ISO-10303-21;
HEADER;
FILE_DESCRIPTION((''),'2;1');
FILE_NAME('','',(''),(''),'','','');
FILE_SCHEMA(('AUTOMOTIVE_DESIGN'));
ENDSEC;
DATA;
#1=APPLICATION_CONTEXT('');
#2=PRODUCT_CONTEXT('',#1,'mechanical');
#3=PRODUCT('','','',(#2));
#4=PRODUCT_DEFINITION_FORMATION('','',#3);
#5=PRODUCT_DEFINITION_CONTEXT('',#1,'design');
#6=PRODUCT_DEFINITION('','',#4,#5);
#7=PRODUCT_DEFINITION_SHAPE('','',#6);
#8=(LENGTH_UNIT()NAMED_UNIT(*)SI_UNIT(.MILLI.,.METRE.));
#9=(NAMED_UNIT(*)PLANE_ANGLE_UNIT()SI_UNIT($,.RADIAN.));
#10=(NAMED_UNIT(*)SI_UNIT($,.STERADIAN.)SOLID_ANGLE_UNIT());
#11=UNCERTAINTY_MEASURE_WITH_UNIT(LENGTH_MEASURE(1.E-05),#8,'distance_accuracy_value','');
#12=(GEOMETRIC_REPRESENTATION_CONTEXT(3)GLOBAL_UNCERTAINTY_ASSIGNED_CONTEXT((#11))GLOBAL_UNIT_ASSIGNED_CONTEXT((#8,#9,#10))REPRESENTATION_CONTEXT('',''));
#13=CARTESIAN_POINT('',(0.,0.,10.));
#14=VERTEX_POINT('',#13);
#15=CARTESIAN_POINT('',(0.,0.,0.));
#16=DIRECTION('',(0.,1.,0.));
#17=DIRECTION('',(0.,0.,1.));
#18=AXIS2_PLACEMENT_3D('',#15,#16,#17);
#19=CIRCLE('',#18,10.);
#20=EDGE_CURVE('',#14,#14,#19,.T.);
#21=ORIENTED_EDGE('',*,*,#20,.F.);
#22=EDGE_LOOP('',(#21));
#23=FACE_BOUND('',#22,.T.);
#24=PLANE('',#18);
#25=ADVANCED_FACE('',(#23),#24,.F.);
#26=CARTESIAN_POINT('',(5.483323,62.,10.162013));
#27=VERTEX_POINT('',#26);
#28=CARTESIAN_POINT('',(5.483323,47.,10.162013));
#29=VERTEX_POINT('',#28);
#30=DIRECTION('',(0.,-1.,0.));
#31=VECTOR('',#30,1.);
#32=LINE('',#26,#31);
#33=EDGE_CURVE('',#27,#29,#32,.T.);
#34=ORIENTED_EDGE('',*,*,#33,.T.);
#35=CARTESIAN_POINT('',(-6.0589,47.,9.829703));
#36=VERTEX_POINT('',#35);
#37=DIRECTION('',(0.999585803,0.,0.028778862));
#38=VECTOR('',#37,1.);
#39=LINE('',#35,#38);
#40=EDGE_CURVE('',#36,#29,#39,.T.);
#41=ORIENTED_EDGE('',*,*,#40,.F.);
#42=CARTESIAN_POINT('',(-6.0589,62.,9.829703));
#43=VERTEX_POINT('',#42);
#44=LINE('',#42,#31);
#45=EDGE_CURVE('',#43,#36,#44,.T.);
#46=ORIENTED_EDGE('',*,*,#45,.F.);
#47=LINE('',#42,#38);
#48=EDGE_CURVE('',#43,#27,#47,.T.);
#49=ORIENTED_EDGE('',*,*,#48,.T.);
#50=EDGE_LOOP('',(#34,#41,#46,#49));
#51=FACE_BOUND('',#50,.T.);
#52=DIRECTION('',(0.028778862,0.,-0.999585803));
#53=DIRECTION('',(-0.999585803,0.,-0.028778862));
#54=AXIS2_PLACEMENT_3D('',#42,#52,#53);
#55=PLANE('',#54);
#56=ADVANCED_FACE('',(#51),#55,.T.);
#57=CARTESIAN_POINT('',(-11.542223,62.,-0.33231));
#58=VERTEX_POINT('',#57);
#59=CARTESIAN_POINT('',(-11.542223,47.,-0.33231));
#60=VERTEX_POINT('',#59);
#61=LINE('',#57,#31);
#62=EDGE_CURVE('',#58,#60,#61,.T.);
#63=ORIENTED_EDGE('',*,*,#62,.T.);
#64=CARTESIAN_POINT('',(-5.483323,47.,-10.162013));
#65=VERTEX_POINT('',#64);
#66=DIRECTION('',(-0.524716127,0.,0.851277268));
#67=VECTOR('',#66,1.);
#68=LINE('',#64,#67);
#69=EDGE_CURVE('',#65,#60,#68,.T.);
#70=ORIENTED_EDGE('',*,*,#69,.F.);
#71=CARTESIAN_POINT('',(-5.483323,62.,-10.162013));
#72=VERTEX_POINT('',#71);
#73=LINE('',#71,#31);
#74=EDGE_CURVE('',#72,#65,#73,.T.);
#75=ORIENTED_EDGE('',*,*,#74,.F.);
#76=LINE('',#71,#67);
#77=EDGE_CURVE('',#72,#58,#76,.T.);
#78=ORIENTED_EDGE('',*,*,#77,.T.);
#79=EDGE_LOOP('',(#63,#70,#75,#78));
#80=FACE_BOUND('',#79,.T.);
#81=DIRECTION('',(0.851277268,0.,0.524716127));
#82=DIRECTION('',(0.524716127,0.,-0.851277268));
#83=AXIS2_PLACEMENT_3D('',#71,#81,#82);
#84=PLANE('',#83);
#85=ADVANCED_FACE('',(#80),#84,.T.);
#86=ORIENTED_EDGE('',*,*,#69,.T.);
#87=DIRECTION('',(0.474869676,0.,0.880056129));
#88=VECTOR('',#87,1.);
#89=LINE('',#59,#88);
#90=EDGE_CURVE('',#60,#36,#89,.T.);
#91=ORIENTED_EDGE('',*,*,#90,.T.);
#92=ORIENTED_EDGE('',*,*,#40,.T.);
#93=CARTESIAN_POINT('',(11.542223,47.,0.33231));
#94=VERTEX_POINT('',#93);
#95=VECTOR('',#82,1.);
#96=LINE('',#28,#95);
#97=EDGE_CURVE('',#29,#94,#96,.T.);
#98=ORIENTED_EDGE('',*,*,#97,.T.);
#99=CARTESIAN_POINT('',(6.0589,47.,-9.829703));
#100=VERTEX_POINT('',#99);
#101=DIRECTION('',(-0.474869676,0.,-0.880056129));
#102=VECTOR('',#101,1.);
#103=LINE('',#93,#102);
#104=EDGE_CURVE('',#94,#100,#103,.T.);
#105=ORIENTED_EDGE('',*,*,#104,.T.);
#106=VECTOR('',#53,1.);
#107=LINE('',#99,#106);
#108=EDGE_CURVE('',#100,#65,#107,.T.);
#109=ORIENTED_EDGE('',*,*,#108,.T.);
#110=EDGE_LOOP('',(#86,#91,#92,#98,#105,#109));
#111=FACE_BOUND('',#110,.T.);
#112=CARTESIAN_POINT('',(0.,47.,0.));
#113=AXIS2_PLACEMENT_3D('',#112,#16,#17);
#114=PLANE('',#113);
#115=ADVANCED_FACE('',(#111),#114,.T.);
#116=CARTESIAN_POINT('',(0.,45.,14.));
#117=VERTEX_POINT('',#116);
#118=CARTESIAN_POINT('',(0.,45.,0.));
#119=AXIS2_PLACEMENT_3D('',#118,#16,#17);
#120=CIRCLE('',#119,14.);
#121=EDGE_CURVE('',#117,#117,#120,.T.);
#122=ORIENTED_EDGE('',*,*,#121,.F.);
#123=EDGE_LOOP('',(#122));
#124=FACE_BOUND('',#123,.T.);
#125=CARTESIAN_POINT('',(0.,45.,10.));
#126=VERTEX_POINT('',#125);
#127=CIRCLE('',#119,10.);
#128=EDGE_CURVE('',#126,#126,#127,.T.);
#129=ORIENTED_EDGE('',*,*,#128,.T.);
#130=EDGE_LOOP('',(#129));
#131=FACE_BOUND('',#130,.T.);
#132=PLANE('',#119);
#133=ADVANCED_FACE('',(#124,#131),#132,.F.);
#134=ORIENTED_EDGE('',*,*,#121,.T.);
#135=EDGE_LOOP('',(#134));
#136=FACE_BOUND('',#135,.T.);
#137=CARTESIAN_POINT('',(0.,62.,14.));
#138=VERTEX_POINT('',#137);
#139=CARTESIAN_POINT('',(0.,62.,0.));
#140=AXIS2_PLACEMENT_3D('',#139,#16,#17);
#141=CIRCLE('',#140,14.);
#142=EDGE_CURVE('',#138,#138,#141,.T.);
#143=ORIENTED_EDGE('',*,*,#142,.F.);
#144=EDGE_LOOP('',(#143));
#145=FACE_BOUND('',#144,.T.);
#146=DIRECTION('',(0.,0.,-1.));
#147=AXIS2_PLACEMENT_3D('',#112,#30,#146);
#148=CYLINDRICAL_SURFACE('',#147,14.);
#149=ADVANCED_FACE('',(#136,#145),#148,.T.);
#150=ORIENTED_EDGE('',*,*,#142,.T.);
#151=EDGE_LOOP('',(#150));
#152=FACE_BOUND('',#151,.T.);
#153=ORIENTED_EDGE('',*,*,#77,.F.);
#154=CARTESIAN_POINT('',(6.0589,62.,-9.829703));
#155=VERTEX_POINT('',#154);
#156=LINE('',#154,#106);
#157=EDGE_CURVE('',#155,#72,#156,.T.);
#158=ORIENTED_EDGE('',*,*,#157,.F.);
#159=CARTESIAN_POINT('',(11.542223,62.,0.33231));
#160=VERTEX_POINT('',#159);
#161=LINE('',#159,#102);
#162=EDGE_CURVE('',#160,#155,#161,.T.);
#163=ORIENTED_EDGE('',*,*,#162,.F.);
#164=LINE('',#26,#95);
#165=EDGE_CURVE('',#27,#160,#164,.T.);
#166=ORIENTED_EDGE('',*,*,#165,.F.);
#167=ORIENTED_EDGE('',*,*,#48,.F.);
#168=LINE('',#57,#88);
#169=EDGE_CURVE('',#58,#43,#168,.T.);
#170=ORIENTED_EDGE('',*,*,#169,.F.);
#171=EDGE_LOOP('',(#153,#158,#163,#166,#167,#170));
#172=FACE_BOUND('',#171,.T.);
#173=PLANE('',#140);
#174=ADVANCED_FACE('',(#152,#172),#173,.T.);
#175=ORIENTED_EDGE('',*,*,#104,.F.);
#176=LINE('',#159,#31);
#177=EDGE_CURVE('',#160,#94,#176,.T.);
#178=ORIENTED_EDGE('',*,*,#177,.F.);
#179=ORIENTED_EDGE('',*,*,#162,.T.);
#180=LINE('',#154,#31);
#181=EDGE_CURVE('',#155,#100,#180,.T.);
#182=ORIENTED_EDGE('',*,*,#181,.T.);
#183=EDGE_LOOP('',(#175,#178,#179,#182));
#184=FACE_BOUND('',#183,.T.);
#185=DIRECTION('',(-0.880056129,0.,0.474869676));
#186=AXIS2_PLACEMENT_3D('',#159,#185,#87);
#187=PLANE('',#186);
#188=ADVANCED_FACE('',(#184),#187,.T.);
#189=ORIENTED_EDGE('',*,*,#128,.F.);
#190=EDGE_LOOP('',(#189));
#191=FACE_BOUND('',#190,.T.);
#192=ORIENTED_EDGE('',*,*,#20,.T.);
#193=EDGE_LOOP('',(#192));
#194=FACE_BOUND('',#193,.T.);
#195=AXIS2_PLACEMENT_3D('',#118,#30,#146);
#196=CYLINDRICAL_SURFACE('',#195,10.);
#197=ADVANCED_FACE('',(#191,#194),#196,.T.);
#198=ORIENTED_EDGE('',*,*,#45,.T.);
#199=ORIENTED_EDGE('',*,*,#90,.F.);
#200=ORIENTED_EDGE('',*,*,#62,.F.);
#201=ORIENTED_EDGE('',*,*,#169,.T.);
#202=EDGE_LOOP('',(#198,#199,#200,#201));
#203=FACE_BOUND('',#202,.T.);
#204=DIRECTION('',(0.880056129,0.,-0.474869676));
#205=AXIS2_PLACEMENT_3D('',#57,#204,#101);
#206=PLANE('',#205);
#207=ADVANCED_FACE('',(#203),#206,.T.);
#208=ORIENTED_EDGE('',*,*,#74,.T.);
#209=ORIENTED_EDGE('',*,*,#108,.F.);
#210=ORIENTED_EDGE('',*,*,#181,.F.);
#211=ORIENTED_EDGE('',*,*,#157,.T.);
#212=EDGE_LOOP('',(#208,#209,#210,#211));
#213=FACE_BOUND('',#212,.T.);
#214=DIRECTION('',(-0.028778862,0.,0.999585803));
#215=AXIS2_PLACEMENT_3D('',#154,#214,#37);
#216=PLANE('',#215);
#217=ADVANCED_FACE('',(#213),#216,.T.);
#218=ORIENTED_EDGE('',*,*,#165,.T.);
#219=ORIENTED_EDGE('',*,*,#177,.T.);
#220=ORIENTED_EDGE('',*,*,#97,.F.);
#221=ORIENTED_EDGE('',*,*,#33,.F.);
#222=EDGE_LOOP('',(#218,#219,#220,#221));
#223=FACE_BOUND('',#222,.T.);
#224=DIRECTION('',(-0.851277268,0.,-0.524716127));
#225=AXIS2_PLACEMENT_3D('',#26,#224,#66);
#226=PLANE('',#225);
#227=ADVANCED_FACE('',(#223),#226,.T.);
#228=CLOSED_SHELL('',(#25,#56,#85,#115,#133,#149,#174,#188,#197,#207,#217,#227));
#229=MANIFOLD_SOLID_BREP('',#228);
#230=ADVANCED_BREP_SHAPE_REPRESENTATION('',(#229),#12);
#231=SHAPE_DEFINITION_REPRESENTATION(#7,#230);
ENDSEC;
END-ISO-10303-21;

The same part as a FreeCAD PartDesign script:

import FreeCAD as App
import Part
import Sketcher

V = App.Vector
Q = App.Units.Quantity

doc = App.newDocument("Part")
params = doc.addObject("Spreadsheet::Sheet", "Params")
for row, (alias, value) in enumerate([
    ("sketch1_diameter", "20 mm"),
    ("pad1_length", "45 mm"),
    ("sketch2_diameter", "28 mm"),
    ("pad2_length", "2 mm"),
    ("sketch3_diameter", "28 mm"),
    ("pad3_length", "15 mm"),
], start=1):
    params.set(f"A{row}", alias)
    params.set(f"B{row}", "=" + value)
    params.setAlias(f"B{row}", alias)

body = doc.addObject("PartDesign::Body", "Body")

# Sketch on XZ plane
sketch1 = body.newObject("Sketcher::SketchObject", "Sketch")
sketch1.AttachmentSupport = (doc.getObject("XZ_Plane"), [""])
sketch1.MapMode = "FlatFace"
sketch1.addGeometry(Part.Circle(V(0, 0, 0), V(0, 0, 1), 10), False)
sketch1.addConstraint(Sketcher.Constraint("Coincident", 0, 3, -1, 1))
sketch1.addConstraint(Sketcher.Constraint("Diameter", 0, Q("20 mm")))
sketch1.setExpression("Constraints[1]", "Params.sketch1_diameter")
pad1 = body.newObject("PartDesign::Pad", "Pad")
pad1.Profile = sketch1
pad1.setExpression("Length", "Params.pad1_length")
pad1.Reversed = True

# Sketch on XZ plane
sketch2 = body.newObject("Sketcher::SketchObject", "Sketch001")
sketch2.AttachmentSupport = (doc.getObject("XZ_Plane"), [""])
sketch2.MapMode = "FlatFace"
sketch2.AttachmentOffset = App.Placement(V(0, 0, -45), App.Rotation())
sketch2.addGeometry(Part.Circle(V(0, 0, 0), V(0, 0, 1), 14), False)
sketch2.addConstraint(Sketcher.Constraint("Coincident", 0, 3, -1, 1))
sketch2.addConstraint(Sketcher.Constraint("Diameter", 0, Q("28 mm")))
sketch2.setExpression("Constraints[1]", "Params.sketch2_diameter")
pad2 = body.newObject("PartDesign::Pad", "Pad001")
pad2.Profile = sketch2
pad2.setExpression("Length", "Params.pad2_length")
pad2.Reversed = True

# Sketch on XZ plane
sketch3 = body.newObject("Sketcher::SketchObject", "Sketch002")
sketch3.AttachmentSupport = (doc.getObject("XZ_Plane"), [""])
sketch3.MapMode = "FlatFace"
sketch3.AttachmentOffset = App.Placement(V(0, 0, -47), App.Rotation())
sketch3.addGeometry(Part.Circle(V(0, 0, 0), V(0, 0, 1), 14), False)
sketch3.addGeometry(Part.LineSegment(V(6, -10, 0), V(12, 0, 0)), False)
sketch3.addGeometry(Part.LineSegment(V(12, 0, 0), V(5, 10, 0)), False)
sketch3.addGeometry(Part.LineSegment(V(5, 10, 0), V(-6, 10, 0)), False)
sketch3.addGeometry(Part.LineSegment(V(-6, 10, 0), V(-12, 0, 0)), False)
sketch3.addGeometry(Part.LineSegment(V(-12, 0, 0), V(-5, -10, 0)), False)
sketch3.addGeometry(Part.LineSegment(V(-5, -10, 0), V(6, -10, 0)), False)
sketch3.addConstraint(Sketcher.Constraint("Coincident", 1, 2, 2, 1))
sketch3.addConstraint(Sketcher.Constraint("Coincident", 2, 2, 3, 1))
sketch3.addConstraint(Sketcher.Constraint("Coincident", 3, 2, 4, 1))
sketch3.addConstraint(Sketcher.Constraint("Coincident", 4, 2, 5, 1))
sketch3.addConstraint(Sketcher.Constraint("Coincident", 5, 2, 6, 1))
sketch3.addConstraint(Sketcher.Constraint("Coincident", 6, 2, 1, 1))
sketch3.addConstraint(Sketcher.Constraint("Coincident", 0, 3, -1, 1))
sketch3.addConstraint(Sketcher.Constraint("Symmetric", 1, 2, 4, 2, -1, 1))
sketch3.addConstraint(Sketcher.Constraint("Symmetric", 2, 2, 5, 2, -1, 1))
sketch3.addConstraint(Sketcher.Constraint("Symmetric", 3, 2, 6, 2, -1, 1))
sketch3.addConstraint(Sketcher.Constraint("Equal", 1, 2))
sketch3.addConstraint(Sketcher.Constraint("Equal", 2, 3))
sketch3.addConstraint(Sketcher.Constraint("Diameter", 0, Q("28 mm")))
sketch3.addConstraint(Sketcher.Constraint("DistanceX", 3, 2, -1, 1, Q("6.0589 mm")))
sketch3.addConstraint(Sketcher.Constraint("DistanceX", 2, 2, 1, 2, Q("6.0589 mm")))
sketch3.addConstraint(Sketcher.Constraint("DistanceY", -1, 1, 1, 2, Q("0.33231 mm")))
sketch3.addConstraint(Sketcher.Constraint("DistanceY", 3, 2, 2, 2, Q("0.33231 mm")))
sketch3.setExpression("Constraints[12]", "Params.sketch3_diameter")
pad3 = body.newObject("PartDesign::Pad", "Pad002")
pad3.Profile = sketch3
pad3.setExpression("Length", "Params.pad3_length")
pad3.Reversed = True

doc.recompute()
